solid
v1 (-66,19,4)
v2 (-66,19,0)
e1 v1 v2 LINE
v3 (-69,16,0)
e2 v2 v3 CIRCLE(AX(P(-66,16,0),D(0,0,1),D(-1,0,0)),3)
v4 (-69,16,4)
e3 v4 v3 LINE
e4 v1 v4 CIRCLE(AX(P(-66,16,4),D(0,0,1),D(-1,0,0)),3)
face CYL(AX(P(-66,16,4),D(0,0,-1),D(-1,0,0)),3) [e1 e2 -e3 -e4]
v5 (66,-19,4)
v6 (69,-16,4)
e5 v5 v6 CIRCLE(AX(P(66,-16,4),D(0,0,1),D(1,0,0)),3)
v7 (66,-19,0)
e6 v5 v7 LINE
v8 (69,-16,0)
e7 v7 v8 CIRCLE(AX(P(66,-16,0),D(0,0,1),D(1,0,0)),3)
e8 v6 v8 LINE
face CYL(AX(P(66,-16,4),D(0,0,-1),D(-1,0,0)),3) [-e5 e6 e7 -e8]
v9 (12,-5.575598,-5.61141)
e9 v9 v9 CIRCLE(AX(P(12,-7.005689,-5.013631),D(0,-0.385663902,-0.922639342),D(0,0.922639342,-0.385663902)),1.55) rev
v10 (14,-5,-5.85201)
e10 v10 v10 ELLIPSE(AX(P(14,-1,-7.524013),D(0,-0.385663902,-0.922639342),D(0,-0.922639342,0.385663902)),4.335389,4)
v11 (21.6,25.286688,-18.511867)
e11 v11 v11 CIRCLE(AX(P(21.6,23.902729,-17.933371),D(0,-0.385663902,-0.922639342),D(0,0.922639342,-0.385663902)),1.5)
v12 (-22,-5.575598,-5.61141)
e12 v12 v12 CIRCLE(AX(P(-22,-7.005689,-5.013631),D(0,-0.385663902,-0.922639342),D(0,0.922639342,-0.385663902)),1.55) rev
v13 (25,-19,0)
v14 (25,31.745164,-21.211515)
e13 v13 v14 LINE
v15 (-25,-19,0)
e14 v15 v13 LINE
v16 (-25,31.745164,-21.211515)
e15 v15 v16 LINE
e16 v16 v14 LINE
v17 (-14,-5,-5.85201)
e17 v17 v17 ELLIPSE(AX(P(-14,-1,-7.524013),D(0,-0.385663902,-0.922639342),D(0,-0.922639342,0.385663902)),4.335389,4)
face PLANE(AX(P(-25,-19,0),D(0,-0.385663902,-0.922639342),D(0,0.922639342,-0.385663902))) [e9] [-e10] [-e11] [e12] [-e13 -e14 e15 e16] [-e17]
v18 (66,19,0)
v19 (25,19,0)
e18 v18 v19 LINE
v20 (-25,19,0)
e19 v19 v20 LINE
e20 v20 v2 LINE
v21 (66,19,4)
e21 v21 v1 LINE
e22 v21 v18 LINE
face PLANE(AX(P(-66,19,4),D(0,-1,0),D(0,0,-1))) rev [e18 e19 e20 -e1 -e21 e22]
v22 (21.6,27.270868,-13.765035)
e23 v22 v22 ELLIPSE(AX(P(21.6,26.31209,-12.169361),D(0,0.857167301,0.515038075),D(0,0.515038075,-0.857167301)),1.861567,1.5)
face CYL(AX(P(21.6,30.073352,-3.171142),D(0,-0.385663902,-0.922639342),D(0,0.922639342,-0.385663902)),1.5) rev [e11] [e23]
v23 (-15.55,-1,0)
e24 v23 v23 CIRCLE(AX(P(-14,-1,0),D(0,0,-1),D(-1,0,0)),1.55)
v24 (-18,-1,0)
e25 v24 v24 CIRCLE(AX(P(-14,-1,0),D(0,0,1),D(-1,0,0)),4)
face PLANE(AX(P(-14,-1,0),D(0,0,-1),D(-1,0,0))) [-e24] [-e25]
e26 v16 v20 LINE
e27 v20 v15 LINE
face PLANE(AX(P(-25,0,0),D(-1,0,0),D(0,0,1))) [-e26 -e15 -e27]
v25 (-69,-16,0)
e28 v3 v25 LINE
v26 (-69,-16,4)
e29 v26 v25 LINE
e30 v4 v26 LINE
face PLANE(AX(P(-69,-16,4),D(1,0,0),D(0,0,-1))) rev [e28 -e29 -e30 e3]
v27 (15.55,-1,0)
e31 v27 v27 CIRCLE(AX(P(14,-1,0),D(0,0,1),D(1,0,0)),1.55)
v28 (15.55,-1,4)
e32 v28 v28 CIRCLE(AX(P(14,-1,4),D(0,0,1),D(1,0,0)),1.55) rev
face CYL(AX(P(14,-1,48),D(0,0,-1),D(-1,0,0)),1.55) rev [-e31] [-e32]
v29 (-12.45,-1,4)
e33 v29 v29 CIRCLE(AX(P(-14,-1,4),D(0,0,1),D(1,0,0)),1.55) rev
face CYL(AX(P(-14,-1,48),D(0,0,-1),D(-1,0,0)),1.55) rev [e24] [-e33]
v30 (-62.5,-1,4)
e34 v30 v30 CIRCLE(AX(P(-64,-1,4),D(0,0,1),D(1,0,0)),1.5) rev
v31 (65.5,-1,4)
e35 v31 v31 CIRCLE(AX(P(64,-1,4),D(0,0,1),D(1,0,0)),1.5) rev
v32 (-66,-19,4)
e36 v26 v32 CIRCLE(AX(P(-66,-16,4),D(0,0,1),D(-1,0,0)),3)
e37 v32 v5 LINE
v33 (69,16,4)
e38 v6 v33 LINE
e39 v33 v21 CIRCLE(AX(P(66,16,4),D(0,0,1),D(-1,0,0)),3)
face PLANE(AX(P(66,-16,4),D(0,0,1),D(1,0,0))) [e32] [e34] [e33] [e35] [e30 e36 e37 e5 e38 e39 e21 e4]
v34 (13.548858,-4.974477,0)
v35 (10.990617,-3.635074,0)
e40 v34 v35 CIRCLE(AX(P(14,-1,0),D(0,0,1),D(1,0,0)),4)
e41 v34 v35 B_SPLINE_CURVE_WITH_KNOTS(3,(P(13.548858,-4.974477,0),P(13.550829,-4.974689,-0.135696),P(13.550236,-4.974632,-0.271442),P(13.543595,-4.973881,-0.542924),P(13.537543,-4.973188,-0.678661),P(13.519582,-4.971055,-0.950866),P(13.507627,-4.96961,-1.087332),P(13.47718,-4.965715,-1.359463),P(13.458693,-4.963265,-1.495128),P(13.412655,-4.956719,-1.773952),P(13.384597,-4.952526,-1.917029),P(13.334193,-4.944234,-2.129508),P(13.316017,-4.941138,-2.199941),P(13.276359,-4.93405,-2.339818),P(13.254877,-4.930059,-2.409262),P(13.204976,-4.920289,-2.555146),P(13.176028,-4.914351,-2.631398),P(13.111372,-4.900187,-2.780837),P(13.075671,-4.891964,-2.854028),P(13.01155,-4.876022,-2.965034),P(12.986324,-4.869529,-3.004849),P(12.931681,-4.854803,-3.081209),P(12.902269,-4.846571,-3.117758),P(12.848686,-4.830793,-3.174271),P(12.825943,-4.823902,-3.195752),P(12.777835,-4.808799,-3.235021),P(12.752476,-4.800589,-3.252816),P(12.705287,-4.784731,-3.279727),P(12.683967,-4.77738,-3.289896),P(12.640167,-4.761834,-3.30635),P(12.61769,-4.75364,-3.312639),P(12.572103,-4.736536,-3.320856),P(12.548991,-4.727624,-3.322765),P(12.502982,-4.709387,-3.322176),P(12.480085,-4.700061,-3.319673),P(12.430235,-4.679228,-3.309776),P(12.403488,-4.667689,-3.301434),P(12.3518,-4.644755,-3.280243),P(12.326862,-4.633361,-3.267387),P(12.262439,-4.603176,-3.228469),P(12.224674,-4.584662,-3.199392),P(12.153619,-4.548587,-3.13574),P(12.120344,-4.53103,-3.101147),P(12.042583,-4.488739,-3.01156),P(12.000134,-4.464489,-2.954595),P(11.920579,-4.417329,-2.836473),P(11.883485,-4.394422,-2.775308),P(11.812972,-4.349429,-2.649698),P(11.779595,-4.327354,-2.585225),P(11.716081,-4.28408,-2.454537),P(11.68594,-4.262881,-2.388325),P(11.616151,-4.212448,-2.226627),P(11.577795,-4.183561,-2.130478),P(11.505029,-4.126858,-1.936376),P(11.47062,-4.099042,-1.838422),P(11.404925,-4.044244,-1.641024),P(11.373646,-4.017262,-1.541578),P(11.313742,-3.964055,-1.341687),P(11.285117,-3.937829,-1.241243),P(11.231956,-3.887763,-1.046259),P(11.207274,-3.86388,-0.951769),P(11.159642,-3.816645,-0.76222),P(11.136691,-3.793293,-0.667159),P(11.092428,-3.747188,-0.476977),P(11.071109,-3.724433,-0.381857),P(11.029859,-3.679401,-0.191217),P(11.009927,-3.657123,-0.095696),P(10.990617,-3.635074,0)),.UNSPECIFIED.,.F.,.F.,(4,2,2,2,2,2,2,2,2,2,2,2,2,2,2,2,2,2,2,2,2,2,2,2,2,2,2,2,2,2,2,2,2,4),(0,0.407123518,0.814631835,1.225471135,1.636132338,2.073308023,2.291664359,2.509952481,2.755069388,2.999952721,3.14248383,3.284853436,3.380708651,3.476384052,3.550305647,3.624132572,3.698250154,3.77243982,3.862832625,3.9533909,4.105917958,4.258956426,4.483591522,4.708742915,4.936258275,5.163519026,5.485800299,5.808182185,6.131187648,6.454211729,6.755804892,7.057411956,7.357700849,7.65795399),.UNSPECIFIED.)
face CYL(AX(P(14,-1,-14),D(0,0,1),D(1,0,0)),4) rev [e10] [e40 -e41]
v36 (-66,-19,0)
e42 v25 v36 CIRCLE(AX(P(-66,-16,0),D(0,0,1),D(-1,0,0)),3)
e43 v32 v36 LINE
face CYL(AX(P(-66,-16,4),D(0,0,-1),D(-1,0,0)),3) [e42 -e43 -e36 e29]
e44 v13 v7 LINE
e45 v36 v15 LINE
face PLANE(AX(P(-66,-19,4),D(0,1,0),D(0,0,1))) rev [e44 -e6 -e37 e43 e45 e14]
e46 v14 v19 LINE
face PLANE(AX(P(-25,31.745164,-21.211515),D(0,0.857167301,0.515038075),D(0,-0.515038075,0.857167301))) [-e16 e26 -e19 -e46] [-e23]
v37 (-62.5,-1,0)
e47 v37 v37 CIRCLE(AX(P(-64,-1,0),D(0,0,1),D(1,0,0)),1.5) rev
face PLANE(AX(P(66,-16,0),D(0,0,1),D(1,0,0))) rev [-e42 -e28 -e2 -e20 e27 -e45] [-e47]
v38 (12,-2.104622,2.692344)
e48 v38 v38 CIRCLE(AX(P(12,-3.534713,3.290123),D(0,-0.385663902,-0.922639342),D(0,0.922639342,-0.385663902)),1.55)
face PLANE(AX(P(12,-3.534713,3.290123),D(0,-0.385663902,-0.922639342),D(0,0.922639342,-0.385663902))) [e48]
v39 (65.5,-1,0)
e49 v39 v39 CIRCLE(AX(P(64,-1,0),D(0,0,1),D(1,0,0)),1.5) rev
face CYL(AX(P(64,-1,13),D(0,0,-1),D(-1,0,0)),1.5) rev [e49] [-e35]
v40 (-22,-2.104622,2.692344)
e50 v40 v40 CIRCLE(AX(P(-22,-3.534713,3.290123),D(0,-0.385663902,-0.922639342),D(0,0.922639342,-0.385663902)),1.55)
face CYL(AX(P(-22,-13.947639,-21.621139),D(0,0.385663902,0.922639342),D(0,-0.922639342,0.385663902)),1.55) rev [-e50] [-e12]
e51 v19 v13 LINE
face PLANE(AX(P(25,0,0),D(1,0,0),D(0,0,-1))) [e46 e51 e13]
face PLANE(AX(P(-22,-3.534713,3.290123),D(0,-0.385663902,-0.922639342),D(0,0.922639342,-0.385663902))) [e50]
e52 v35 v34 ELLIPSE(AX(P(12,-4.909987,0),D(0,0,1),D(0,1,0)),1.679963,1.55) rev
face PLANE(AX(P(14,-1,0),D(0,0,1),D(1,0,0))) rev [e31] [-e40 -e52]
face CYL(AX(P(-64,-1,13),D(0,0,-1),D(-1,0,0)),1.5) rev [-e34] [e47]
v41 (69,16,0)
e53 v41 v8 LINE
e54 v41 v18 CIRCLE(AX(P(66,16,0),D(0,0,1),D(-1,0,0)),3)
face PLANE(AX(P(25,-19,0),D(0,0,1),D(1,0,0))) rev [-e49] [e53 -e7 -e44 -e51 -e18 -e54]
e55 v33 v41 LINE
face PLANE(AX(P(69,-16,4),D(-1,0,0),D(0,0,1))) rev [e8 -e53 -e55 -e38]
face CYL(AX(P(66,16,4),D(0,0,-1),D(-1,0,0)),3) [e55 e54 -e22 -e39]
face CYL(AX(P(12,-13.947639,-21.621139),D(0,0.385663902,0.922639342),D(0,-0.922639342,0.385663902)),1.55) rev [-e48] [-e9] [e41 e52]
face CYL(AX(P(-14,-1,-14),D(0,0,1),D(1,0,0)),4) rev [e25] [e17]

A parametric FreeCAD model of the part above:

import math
import FreeCAD as App
import Part
import Sketcher
from FreeCAD import Vector
Q = App.Units.Quantity


def add_polygon(sketch, points):
    """Adds a closed chain of lines whose ends are joined by coincident constraints."""
    first, n = sketch.GeometryCount, len(points)
    for a, b in zip(points, points[1:] + points[:1]):
        sketch.addGeometry(Part.LineSegment(App.Vector(*a, 0), App.Vector(*b, 0)), False)
    for i in range(n):
        sketch.addConstraint(Sketcher.Constraint("Coincident", first + i, 2, first + (i + 1) % n, 1))

doc = App.newDocument("Part")
body = doc.addObject("PartDesign::Body", "Body")

sketch1 = body.newObject("Sketcher::SketchObject", "Sketch")
sketch1.AttachmentSupport = (doc.getObject("XY_Plane"), [""])
sketch1.MapMode = "FlatFace"
sketch1.addGeometry(Part.LineSegment(Vector(-66, -19, 0), Vector(66, -19, 0)), False)
sketch1.addGeometry(Part.ArcOfCircle(Part.Circle(Vector(66, -16, 0), Vector(0, 0, 1), 3), math.radians(-90), math.radians(0)), False)
sketch1.addGeometry(Part.LineSegment(Vector(69, -16, 0), Vector(69, 16, 0)), False)
sketch1.addGeometry(Part.ArcOfCircle(Part.Circle(Vector(66, 16, 0), Vector(0, 0, 1), 3), math.radians(0), math.radians(90)), False)
sketch1.addGeometry(Part.LineSegment(Vector(66, 19, 0), Vector(-66, 19, 0)), False)
sketch1.addGeometry(Part.ArcOfCircle(Part.Circle(Vector(-66, 16, 0), Vector(0, 0, 1), 3), math.radians(90), math.radians(180)), False)
sketch1.addGeometry(Part.LineSegment(Vector(-69, 16, 0), Vector(-69, -16, 0)), False)
sketch1.addGeometry(Part.ArcOfCircle(Part.Circle(Vector(-66, -16, 0), Vector(0, 0, 1), 3), math.radians(180), math.radians(270)), False)
sketch1.addConstraint(Sketcher.Constraint("Tangent", 0, 2, 1, 1))
sketch1.addConstraint(Sketcher.Constraint("Tangent", 1, 2, 2, 1))
sketch1.addConstraint(Sketcher.Constraint("Tangent", 2, 2, 3, 1))
sketch1.addConstraint(Sketcher.Constraint("Tangent", 3, 2, 4, 1))
sketch1.addConstraint(Sketcher.Constraint("Tangent", 4, 2, 5, 1))
sketch1.addConstraint(Sketcher.Constraint("Tangent", 5, 2, 6, 1))
sketch1.addConstraint(Sketcher.Constraint("Tangent", 6, 2, 7, 1))
sketch1.addConstraint(Sketcher.Constraint("Tangent", 7, 2, 0, 1))
sketch1.addConstraint(Sketcher.Constraint("Horizontal", 0))
sketch1.addConstraint(Sketcher.Constraint("Vertical", 2))
sketch1.addConstraint(Sketcher.Constraint("Horizontal", 4))
sketch1.addConstraint(Sketcher.Constraint("Vertical", 6))
sketch1.addConstraint(Sketcher.Constraint("Equal", 1, 3))
sketch1.addConstraint(Sketcher.Constraint("Equal", 3, 5))
sketch1.addConstraint(Sketcher.Constraint("Equal", 5, 7))
sketch1.addConstraint(Sketcher.Constraint("Symmetric", 1, 3, 5, 3, -1, 1))
sketch1.addConstraint(Sketcher.Constraint("Radius", 1, 3.0))
sketch1.addConstraint(Sketcher.Constraint("DistanceX", 0, 1, 0, 2, 132.0))
sketch1.addConstraint(Sketcher.Constraint("DistanceY", 2, 1, 2, 2, 32.0))
pad1 = body.newObject("PartDesign::Pad", "Pad")
pad1.Profile = sketch1
pad1.Length = 4

sketch2 = body.newObject("Sketcher::SketchObject", "Sketch001")
sketch2.AttachmentSupport = (doc.getObject("XY_Plane"), [""])
sketch2.MapMode = "FlatFace"
sketch2.addGeometry(Part.Circle(Vector(-64, -1, 0), Vector(0, 0, 1), 1.5), False)
sketch2.addGeometry(Part.Circle(Vector(64, -1, 0), Vector(0, 0, 1), 1.5), False)
sketch2.addConstraint(Sketcher.Constraint("Equal", 0, 1))
sketch2.addConstraint(Sketcher.Constraint("Symmetric", 0, 3, 1, 3, -2))
sketch2.addConstraint(Sketcher.Constraint("Diameter", 0, 3.0))
sketch2.addConstraint(Sketcher.Constraint("DistanceX", 0, 3, -1, 1, 64.0))
sketch2.addConstraint(Sketcher.Constraint("DistanceY", 0, 3, -1, 1, 1.0))
pocket1 = body.newObject("PartDesign::Pocket", "Pocket")
pocket1.Profile = sketch2
pocket1.Type = "ThroughAll"
pocket1.Midplane = True

sketch3 = body.newObject("Sketcher::SketchObject", "Sketch002")
sketch3.AttachmentSupport = (doc.getObject("YZ_Plane"), [""])
sketch3.MapMode = "FlatFace"
sketch3.AttachmentOffset = App.Placement(Vector(0, 0, 69), App.Rotation())
add_polygon(sketch3, [(-19, 0), (32, -21), (19, 0)])
sketch3.addConstraint(Sketcher.Constraint("Horizontal", 2))
sketch3.addConstraint(Sketcher.Constraint("Symmetric", 1, 2, 2, 2, -1, 1))
sketch3.addConstraint(Sketcher.Constraint("DistanceX", 2, 2, 2, 1, 38.0))
sketch3.addConstraint(Sketcher.Constraint("Angle", 1, Q("121 deg")))
sketch3.addConstraint(Sketcher.Constraint("Distance", 0, 55.0))
pad2 = body.newObject("PartDesign::Pad", "Pad001")
pad2.Profile = sketch3
pad2.Length = 94
pad2.Reversed = True

sketch4 = body.newObject("Sketcher::SketchObject", "Sketch003")
sketch4.AttachmentSupport = (doc.getObject("YZ_Plane"), [""])
sketch4.MapMode = "FlatFace"
sketch4.AttachmentOffset = App.Placement(Vector(0, 0, 69), App.Rotation())
add_polygon(sketch4, [(19, 0), (-19, 0), (32, -21)])
sketch4.addConstraint(Sketcher.Constraint("Horizontal", 0))
sketch4.addConstraint(Sketcher.Constraint("Symmetric", 0, 2, 2, 2, -1, 1))
sketch4.addConstraint(Sketcher.Constraint("DistanceX", 0, 2, 0, 1, 38.0))
sketch4.addConstraint(Sketcher.Constraint("Angle", 2, Q("121 deg")))
sketch4.addConstraint(Sketcher.Constraint("Distance", 1, 55.0))
pocket2 = body.newObject("PartDesign::Pocket", "Pocket001")
pocket2.Profile = sketch4
pocket2.Length = 44

sketch5 = body.newObject("Sketcher::SketchObject", "Sketch004")
sketch5.AttachmentSupport = (doc.getObject("XY_Plane"), [""])
sketch5.MapMode = "FlatFace"
sketch5.AttachmentOffset = App.Placement(Vector(0, 0, 4), App.Rotation())
sketch5.addGeometry(Part.Circle(Vector(-14, -1, 0), Vector(0, 0, 1), 1.6), False)
sketch5.addGeometry(Part.Circle(Vector(14, -1, 0), Vector(0, 0, 1), 1.6), False)
sketch5.addConstraint(Sketcher.Constraint("Equal", 0, 1))
sketch5.addConstraint(Sketcher.Constraint("Symmetric", 0, 3, 1, 3, -2))
sketch5.addConstraint(Sketcher.Constraint("Diameter", 0, 3.1))
sketch5.addConstraint(Sketcher.Constraint("DistanceX", 0, 3, -1, 1, 14.0))
sketch5.addConstraint(Sketcher.Constraint("DistanceY", 0, 3, -1, 1, 1.0))
pocket3 = body.newObject("PartDesign::Pocket", "Pocket002")
pocket3.Profile = sketch5
pocket3.Type = "ThroughAll"
pocket3.Midplane = True

sketch6 = body.newObject("Sketcher::SketchObject", "Sketch005")
sketch6.AttachmentSupport = (doc.getObject("XY_Plane"), [""])
sketch6.MapMode = "FlatFace"
sketch6.addGeometry(Part.Circle(Vector(14, -1, 0), Vector(0, 0, 1), 4), False)
sketch6.addGeometry(Part.Circle(Vector(-14, -1, 0), Vector(0, 0, 1), 4), False)
sketch6.addConstraint(Sketcher.Constraint("Equal", 0, 1))
sketch6.addConstraint(Sketcher.Constraint("Symmetric", 0, 3, 1, 3, -2))
sketch6.addConstraint(Sketcher.Constraint("Diameter", 0, 8.0))
sketch6.addConstraint(Sketcher.Constraint("DistanceX", -1, 1, 0, 3, 14.0))
sketch6.addConstraint(Sketcher.Constraint("DistanceY", 0, 3, -1, 1, 1.0))
pocket4 = body.newObject("PartDesign::Pocket", "Pocket003")
pocket4.Profile = sketch6
pocket4.Length = 14

sketch7 = body.newObject("Sketcher::SketchObject", "Sketch006")
sketch7.Placement = App.Placement(Vector(0, -2.825996, -6.760745), App.Rotation(Vector(-1, 0, 0), Vector(0, 0.922639342, -0.385663902), Vector(0, -0.385663902, -0.922639342), "ZXY"))
sketch7.addGeometry(Part.Circle(Vector(-21.6, 29, 0), Vector(0, 0, 1), 1.5), False)
sketch7.addConstraint(Sketcher.Constraint("Diameter", 0, 3.0))
sketch7.addConstraint(Sketcher.Constraint("DistanceX", 0, 3, -1, 1, 21.6))
sketch7.addConstraint(Sketcher.Constraint("DistanceY", -1, 1, 0, 3, 28.969853))
pocket5 = body.newObject("PartDesign::Pocket", "Pocket004")
pocket5.Profile = sketch7
pocket5.Length = 16

sketch8 = body.newObject("Sketcher::SketchObject", "Sketch007")
sketch8.Placement = App.Placement(Vector(0, -2.825996, -6.760745), App.Rotation(Vector(-1, 0, 0), Vector(0, 0.922639342, -0.385663902), Vector(0, -0.385663902, -0.922639342), "ZXY"))
sketch8.addGeometry(Part.Circle(Vector(22, -4.5, 0), Vector(0, 0, 1), 1.6), False)
sketch8.addGeometry(Part.Circle(Vector(-12, -4.5, 0), Vector(0, 0, 1), 1.6), False)
sketch8.addConstraint(Sketcher.Constraint("Equal", 0, 1))
sketch8.addConstraint(Sketcher.Constraint("Horizontal", 0, 3, 1, 3))
sketch8.addConstraint(Sketcher.Constraint("Diameter", 0, 3.1))
sketch8.addConstraint(Sketcher.Constraint("DistanceX", -1, 1, 0, 3, 22.0))
sketch8.addConstraint(Sketcher.Constraint("DistanceX", 1, 3, -1, 1, 12.0))
sketch8.addConstraint(Sketcher.Constraint("DistanceY", 0, 3, -1, 1, 4.530147))
pocket6 = body.newObject("PartDesign::Pocket", "Pocket005")
pocket6.Profile = sketch8
pocket6.Type = "TwoLengths"
pocket6.Length = 18
pocket6.Length2 = 9
pocket6.Reversed = True

doc.recompute()
